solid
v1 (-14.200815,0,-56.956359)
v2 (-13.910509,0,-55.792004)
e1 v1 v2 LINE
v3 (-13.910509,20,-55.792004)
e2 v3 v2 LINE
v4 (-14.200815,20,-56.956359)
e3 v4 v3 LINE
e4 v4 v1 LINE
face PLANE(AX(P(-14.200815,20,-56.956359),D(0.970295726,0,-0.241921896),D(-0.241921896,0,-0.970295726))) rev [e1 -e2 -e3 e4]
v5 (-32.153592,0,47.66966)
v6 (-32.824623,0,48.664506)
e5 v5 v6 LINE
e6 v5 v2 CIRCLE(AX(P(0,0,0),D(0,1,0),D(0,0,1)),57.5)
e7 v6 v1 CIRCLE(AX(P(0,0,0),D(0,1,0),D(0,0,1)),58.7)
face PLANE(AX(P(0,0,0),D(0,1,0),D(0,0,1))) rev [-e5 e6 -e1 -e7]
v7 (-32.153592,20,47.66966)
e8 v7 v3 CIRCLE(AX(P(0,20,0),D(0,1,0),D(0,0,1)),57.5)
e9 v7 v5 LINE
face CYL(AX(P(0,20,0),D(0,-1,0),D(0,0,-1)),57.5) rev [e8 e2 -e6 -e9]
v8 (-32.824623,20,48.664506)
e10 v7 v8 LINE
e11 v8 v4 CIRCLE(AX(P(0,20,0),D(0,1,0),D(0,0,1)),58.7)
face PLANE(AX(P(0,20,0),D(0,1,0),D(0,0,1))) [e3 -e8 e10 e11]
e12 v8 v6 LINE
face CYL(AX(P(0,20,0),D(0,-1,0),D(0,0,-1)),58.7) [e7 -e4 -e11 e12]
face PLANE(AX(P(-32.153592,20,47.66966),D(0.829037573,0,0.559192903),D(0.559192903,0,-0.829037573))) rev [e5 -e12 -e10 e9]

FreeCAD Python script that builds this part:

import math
import FreeCAD as App
import Part
import Sketcher
from FreeCAD import Vector
Q = App.Units.Quantity

doc = App.newDocument("Part")
body = doc.addObject("PartDesign::Body", "Body")

sketch1 = body.newObject("Sketcher::SketchObject", "Sketch")
sketch1.AttachmentSupport = (doc.getObject("XZ_Plane"), [""])
sketch1.MapMode = "FlatFace"
sketch1.addGeometry(Part.LineSegment(Vector(-14.2, -57, 0), Vector(-13.9, -55.8, 0)), False)
sketch1.addGeometry(Part.ArcOfCircle(Part.Circle(Vector(0, 0, 0), Vector(0, 0, 1), 57.5), math.radians(-104), math.radians(124)), False)
sketch1.addGeometry(Part.LineSegment(Vector(-32.2, 47.7, 0), Vector(-32.8, 48.7, 0)), False)
sketch1.addGeometry(Part.ArcOfCircle(Part.Circle(Vector(0, 0, 0), Vector(0, 0, 1), 58.7), math.radians(-104), math.radians(124)), False)
sketch1.addConstraint(Sketcher.Constraint("Coincident", 0, 2, 1, 1))
sketch1.addConstraint(Sketcher.Constraint("Coincident", 1, 2, 2, 1))
sketch1.addConstraint(Sketcher.Constraint("Coincident", 2, 2, 3, 2))
sketch1.addConstraint(Sketcher.Constraint("Coincident", 3, 1, 0, 1))
sketch1.addConstraint(Sketcher.Constraint("Coincident", 1, 3, -1, 1))
sketch1.addConstraint(Sketcher.Constraint("Coincident", 3, 3, -1, 1))
sketch1.addConstraint(Sketcher.Constraint("Radius", 1, Q("57.5 mm")))
sketch1.addConstraint(Sketcher.Constraint("Radius", 3, Q("58.7 mm")))
sketch1.addConstraint(Sketcher.Constraint("Angle", 0, Q("76 deg")))
sketch1.addConstraint(Sketcher.Constraint("Angle", 2, Q("124 deg")))
sketch1.addConstraint(Sketcher.Constraint("DistanceX", 0, 2, -1, 1, Q("13.910509 mm")))
sketch1.addConstraint(Sketcher.Constraint("DistanceX", 1, 2, -1, 1, Q("32.153592 mm")))
pad1 = body.newObject("PartDesign::Pad", "Pad")
pad1.Profile = sketch1
pad1.Length = 20
pad1.Reversed = True

doc.recompute()
